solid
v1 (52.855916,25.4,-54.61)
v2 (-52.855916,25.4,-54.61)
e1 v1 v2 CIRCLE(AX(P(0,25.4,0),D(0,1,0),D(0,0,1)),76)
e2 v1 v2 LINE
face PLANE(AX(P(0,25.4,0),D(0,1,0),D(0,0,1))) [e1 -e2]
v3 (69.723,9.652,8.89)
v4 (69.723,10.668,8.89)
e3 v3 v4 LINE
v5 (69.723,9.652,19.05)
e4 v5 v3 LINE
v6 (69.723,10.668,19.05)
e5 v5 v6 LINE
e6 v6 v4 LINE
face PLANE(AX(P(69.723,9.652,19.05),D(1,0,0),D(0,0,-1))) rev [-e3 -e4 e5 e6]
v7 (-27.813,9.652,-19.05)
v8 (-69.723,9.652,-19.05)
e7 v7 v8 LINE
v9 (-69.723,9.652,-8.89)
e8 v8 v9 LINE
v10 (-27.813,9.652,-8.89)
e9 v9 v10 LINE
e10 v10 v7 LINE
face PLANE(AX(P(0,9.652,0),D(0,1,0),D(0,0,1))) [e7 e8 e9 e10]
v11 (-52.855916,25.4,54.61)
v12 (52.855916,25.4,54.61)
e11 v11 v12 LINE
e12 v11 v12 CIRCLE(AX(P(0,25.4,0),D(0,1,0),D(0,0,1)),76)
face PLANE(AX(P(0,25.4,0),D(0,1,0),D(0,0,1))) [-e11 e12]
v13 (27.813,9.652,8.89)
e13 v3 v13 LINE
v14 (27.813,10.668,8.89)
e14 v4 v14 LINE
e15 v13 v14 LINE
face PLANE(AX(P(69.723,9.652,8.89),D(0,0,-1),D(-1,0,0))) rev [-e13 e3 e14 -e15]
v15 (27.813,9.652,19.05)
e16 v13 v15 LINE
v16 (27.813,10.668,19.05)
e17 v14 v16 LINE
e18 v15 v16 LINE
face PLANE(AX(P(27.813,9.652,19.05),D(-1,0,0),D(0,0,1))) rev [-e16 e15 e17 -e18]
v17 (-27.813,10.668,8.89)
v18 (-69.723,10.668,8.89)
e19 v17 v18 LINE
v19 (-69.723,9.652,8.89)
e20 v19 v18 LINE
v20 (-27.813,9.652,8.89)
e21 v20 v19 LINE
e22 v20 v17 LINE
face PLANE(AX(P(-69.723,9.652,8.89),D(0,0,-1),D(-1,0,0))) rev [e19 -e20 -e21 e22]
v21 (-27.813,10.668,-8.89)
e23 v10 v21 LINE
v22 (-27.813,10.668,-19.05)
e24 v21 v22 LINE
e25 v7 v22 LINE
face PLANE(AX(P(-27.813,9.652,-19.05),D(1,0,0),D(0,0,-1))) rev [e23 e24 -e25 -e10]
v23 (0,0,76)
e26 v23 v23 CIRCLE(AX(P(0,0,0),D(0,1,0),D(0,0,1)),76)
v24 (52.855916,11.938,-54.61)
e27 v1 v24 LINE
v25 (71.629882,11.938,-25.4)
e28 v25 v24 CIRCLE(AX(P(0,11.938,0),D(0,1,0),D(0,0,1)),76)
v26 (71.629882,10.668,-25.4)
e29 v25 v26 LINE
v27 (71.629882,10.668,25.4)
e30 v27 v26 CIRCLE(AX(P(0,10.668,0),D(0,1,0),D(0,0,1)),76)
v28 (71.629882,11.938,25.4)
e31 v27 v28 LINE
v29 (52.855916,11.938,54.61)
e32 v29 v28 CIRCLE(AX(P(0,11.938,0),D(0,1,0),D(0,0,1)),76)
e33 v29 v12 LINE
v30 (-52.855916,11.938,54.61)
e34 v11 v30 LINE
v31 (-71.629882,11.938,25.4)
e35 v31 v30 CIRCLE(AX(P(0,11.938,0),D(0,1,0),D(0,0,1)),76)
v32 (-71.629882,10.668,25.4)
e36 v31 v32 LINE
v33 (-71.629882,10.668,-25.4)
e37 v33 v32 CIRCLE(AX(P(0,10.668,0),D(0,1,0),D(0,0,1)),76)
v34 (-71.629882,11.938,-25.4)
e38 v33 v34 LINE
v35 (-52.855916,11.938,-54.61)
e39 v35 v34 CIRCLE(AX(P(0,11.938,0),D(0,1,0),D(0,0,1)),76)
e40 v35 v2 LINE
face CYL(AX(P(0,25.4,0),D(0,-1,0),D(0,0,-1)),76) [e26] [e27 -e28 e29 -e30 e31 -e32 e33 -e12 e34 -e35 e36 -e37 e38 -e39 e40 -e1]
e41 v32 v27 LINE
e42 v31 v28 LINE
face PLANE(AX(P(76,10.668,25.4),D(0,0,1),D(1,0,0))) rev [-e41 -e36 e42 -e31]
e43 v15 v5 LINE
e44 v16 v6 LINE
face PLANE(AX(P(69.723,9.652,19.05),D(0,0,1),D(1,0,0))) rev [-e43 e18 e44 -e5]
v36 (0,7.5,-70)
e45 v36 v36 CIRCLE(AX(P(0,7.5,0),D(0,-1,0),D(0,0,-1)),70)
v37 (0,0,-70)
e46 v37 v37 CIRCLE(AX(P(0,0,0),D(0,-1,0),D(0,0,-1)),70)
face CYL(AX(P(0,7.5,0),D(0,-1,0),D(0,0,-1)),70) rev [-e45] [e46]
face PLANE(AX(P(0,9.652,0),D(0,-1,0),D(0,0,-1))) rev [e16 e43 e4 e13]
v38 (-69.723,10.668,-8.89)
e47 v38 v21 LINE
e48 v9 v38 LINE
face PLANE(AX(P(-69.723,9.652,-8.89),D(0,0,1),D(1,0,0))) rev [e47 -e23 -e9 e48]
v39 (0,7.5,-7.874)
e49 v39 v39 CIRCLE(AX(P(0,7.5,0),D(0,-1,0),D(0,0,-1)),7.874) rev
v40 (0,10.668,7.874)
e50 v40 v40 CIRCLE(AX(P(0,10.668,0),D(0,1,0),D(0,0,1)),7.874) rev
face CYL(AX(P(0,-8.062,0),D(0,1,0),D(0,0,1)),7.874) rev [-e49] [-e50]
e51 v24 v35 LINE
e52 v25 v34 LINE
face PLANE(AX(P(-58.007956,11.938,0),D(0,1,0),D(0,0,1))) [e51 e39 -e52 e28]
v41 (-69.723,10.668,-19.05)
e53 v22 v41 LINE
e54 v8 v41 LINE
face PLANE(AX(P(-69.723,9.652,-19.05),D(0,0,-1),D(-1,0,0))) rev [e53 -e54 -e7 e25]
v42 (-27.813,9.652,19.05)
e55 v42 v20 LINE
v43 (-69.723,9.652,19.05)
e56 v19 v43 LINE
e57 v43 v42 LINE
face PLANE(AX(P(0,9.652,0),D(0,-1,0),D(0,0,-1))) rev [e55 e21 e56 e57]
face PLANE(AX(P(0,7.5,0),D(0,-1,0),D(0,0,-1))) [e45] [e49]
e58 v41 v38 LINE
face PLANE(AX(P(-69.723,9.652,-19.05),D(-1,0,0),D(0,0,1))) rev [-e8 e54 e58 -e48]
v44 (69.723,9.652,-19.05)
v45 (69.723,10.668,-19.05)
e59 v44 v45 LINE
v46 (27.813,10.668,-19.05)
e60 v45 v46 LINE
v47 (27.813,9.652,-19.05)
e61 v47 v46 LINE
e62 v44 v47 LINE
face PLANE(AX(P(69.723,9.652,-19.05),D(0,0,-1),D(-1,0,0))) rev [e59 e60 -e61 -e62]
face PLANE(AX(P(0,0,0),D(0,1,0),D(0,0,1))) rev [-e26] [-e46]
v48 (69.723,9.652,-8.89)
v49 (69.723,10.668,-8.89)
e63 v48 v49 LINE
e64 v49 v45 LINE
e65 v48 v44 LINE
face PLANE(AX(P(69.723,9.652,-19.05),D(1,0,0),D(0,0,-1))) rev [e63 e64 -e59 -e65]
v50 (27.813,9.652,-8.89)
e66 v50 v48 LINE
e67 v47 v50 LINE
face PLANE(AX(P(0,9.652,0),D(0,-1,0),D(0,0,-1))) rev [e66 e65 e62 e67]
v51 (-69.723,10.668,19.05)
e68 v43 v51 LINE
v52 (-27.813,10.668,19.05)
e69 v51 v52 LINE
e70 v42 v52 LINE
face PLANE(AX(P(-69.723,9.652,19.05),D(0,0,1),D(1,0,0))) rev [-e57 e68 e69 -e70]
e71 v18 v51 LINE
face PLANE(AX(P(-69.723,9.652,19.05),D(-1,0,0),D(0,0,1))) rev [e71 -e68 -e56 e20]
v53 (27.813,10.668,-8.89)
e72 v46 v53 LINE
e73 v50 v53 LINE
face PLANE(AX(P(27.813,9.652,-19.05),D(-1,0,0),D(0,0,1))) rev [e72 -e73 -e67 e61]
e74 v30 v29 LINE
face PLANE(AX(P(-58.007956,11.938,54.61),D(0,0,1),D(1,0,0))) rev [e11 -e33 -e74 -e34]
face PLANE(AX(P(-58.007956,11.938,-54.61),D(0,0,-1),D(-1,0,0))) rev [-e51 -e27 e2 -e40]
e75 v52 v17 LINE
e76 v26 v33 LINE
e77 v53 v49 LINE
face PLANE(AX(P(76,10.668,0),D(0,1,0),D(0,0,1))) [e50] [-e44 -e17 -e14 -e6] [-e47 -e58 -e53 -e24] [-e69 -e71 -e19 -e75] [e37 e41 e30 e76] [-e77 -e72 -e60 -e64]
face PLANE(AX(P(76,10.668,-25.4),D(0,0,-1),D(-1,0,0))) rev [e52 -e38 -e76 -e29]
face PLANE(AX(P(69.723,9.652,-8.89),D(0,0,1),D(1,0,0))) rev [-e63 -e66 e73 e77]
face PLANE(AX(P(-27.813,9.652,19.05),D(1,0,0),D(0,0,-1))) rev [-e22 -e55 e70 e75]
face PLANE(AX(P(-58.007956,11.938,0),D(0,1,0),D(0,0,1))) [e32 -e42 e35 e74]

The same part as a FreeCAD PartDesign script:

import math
import FreeCAD as App
import Part
import Sketcher
Q = App.Units.Quantity

doc = App.newDocument("Part")
body = doc.addObject("PartDesign::Body", "Body")

# Sketch on XZ plane
sketch1 = doc.addObject("Sketcher::SketchObject", "Sketch")
body.addObject(sketch1)
sketch1.AttachmentSupport = (doc.XZ_Plane, [""])
sketch1.MapMode = "FlatFace"
sketch1.addGeometry(Part.Circle(App.Vector(0, 0, 0), App.Vector(0, 0, 1), 76), False)
sketch1.addConstraint(Sketcher.Constraint("Coincident", 0, 3, -1, 1))
sketch1.addConstraint(Sketcher.Constraint("Diameter", 0, Q("152 mm")))
pad1 = doc.addObject("PartDesign::Pad", "Pad")
body.addObject(pad1)
pad1.Profile = sketch1
pad1.Length = Q("1 in")
pad1.Reversed = True

# Sketch on XZ plane
sketch2 = doc.addObject("Sketcher::SketchObject", "Sketch001")
body.addObject(sketch2)
sketch2.AttachmentSupport = (doc.XZ_Plane, [""])
sketch2.MapMode = "FlatFace"
sketch2.AttachmentOffset = App.Placement(App.Vector(0, 0, -1 * 25.4), App.Rotation())
sketch2.addGeometry(Part.LineSegment(App.Vector(58, -55, 0), App.Vector(-58, -55, 0)), False)
sketch2.addGeometry(Part.ArcOfCircle(Part.Circle(App.Vector(-58, 0, 0), App.Vector(0, 0, 1), 55), math.radians(90), math.radians(270)), False)
sketch2.addGeometry(Part.LineSegment(App.Vector(-58, 55, 0), App.Vector(58, 55, 0)), False)
sketch2.addGeometry(Part.ArcOfCircle(Part.Circle(App.Vector(58, 0, 0), App.Vector(0, 0, 1), 55), math.radians(-90), math.radians(90)), False)
sketch2.addConstraint(Sketcher.Constraint("Tangent", 0, 2, 1, 2))
sketch2.addConstraint(Sketcher.Constraint("Tangent", 1, 1, 2, 1))
sketch2.addConstraint(Sketcher.Constraint("Tangent", 2, 2, 3, 2))
sketch2.addConstraint(Sketcher.Constraint("Tangent", 3, 1, 0, 1))
sketch2.addConstraint(Sketcher.Constraint("Horizontal", 0))
sketch2.addConstraint(Sketcher.Constraint("Horizontal", 2))
sketch2.addConstraint(Sketcher.Constraint("Symmetric", 1, 3, 3, 3, -1, 1))
sketch2.addConstraint(Sketcher.Constraint("Radius", 1, Q("2.15 in")))
sketch2.addConstraint(Sketcher.Constraint("DistanceX", 0, 2, 0, 1, Q("116.015911 mm")))
pocket1 = doc.addObject("PartDesign::Pocket", "Pocket")
body.addObject(pocket1)
pocket1.Profile = sketch2
pocket1.Length = Q("0.53 in")
pocket1.Reversed = True

# Sketch on XZ plane
sketch3 = doc.addObject("Sketcher::SketchObject", "Sketch002")
body.addObject(sketch3)
sketch3.AttachmentSupport = (doc.XZ_Plane, [""])
sketch3.MapMode = "FlatFace"
sketch3.AttachmentOffset = App.Placement(App.Vector(0, 0, -0.47 * 25.4), App.Rotation())
sketch3.addGeometry(Part.Circle(App.Vector(0, 0, 0), App.Vector(0, 0, 1), 8), False)
sketch3.addConstraint(Sketcher.Constraint("Coincident", 0, 3, -1, 1))
sketch3.addConstraint(Sketcher.Constraint("Diameter", 0, Q("0.62 in")))
pocket2 = doc.addObject("PartDesign::Pocket", "Pocket001")
body.addObject(pocket2)
pocket2.Profile = sketch3
pocket2.Length = 20
pocket2.Reversed = True

# Sketch on XZ plane
sketch4 = doc.addObject("Sketcher::SketchObject", "Sketch003")
body.addObject(sketch4)
sketch4.AttachmentSupport = (doc.XZ_Plane, [""])
sketch4.MapMode = "FlatFace"
sketch4.addGeometry(Part.Circle(App.Vector(0, 0, 0), App.Vector(0, 0, 1), 70), False)
sketch4.addConstraint(Sketcher.Constraint("Coincident", 0, 3, -1, 1))
sketch4.addConstraint(Sketcher.Constraint("Diameter", 0, Q("140 mm")))
pocket3 = doc.addObject("PartDesign::Pocket", "Pocket002")
body.addObject(pocket3)
pocket3.Profile = sketch4
pocket3.Length = 7.5

# Sketch on XZ plane
sketch5 = doc.addObject("Sketcher::SketchObject", "Sketch004")
body.addObject(sketch5)
sketch5.AttachmentSupport = (doc.XZ_Plane, [""])
sketch5.MapMode = "FlatFace"
sketch5.AttachmentOffset = App.Placement(App.Vector(0, 0, -0.47 * 25.4), App.Rotation())
sketch5.addGeometry(Part.LineSegment(App.Vector(-76, 25, 0), App.Vector(76, 25, 0)), False)
sketch5.addGeometry(Part.ArcOfCircle(Part.Circle(App.Vector(76, 0, 0), App.Vector(0, 0, 1), 25), math.radians(-90), math.radians(90)), False)
sketch5.addGeometry(Part.LineSegment(App.Vector(76, -25, 0), App.Vector(-76, -25, 0)), False)
sketch5.addGeometry(Part.ArcOfCircle(Part.Circle(App.Vector(-76, 0, 0), App.Vector(0, 0, 1), 25), math.radians(90), math.radians(270)), False)
sketch5.addConstraint(Sketcher.Constraint("Tangent", 0, 2, 1, 2))
sketch5.addConstraint(Sketcher.Constraint("Tangent", 1, 1, 2, 1))
sketch5.addConstraint(Sketcher.Constraint("Tangent", 2, 2, 3, 2))
sketch5.addConstraint(Sketcher.Constraint("Tangent", 3, 1, 0, 1))
sketch5.addConstraint(Sketcher.Constraint("Horizontal", 0))
sketch5.addConstraint(Sketcher.Constraint("Horizontal", 2))
sketch5.addConstraint(Sketcher.Constraint("Symmetric", 1, 3, 3, 3, -1, 1))
sketch5.addConstraint(Sketcher.Constraint("Radius", 1, Q("1 in")))
sketch5.addConstraint(Sketcher.Constraint("DistanceX", 0, 1, 0, 2, Q("152 mm")))
pocket4 = doc.addObject("PartDesign::Pocket", "Pocket003")
body.addObject(pocket4)
pocket4.Profile = sketch5
pocket4.Length = Q("0.05 in")
pocket4.Reversed = True

# Sketch on XZ plane
sketch6 = doc.addObject("Sketcher::SketchObject", "Sketch005")
body.addObject(sketch6)
sketch6.AttachmentSupport = (doc.XZ_Plane, [""])
sketch6.MapMode = "FlatFace"
sketch6.AttachmentOffset = App.Placement(App.Vector(0, 0, -0.42 * 25.4), App.Rotation())
sketch6.addGeometry(Part.LineSegment(App.Vector(-70, 9, 0), App.Vector(-70, 19, 0)), False)
sketch6.addGeometry(Part.LineSegment(App.Vector(-70, 19, 0), App.Vector(-28, 19, 0)), False)
sketch6.addGeometry(Part.LineSegment(App.Vector(-28, 19, 0), App.Vector(-28, 9, 0)), False)
sketch6.addGeometry(Part.LineSegment(App.Vector(-28, 9, 0), App.Vector(-70, 9, 0)), False)
sketch6.addGeometry(Part.LineSegment(App.Vector(-70, -19, 0), App.Vector(-70, -9, 0)), False)
sketch6.addGeometry(Part.LineSegment(App.Vector(-70, -9, 0), App.Vector(-28, -9, 0)), False)
sketch6.addGeometry(Part.LineSegment(App.Vector(-28, -9, 0), App.Vector(-28, -19, 0)), False)
sketch6.addGeometry(Part.LineSegment(App.Vector(-28, -19, 0), App.Vector(-70, -19, 0)), False)
sketch6.addGeometry(Part.LineSegment(App.Vector(28, 9, 0), App.Vector(28, 19, 0)), False)
sketch6.addGeometry(Part.LineSegment(App.Vector(28, 19, 0), App.Vector(70, 19, 0)), False)
sketch6.addGeometry(Part.LineSegment(App.Vector(70, 19, 0), App.Vector(70, 9, 0)), False)
sketch6.addGeometry(Part.LineSegment(App.Vector(70, 9, 0), App.Vector(28, 9, 0)), False)
sketch6.addGeometry(Part.LineSegment(App.Vector(28, -19, 0), App.Vector(28, -9, 0)), False)
sketch6.addGeometry(Part.LineSegment(App.Vector(28, -9, 0), App.Vector(70, -9, 0)), False)
sketch6.addGeometry(Part.LineSegment(App.Vector(70, -9, 0), App.Vector(70, -19, 0)), False)
sketch6.addGeometry(Part.LineSegment(App.Vector(70, -19, 0), App.Vector(28, -19, 0)), False)
sketch6.addConstraint(Sketcher.Constraint("Coincident", 0, 2, 1, 1))
sketch6.addConstraint(Sketcher.Constraint("Coincident", 1, 2, 2, 1))
sketch6.addConstraint(Sketcher.Constraint("Coincident", 2, 2, 3, 1))
sketch6.addConstraint(Sketcher.Constraint("Coincident", 3, 2, 0, 1))
sketch6.addConstraint(Sketcher.Constraint("Coincident", 4, 2, 5, 1))
sketch6.addConstraint(Sketcher.Constraint("Coincident", 5, 2, 6, 1))
sketch6.addConstraint(Sketcher.Constraint("Coincident", 6, 2, 7, 1))
sketch6.addConstraint(Sketcher.Constraint("Coincident", 7, 2, 4, 1))
sketch6.addConstraint(Sketcher.Constraint("Coincident", 8, 2, 9, 1))
sketch6.addConstraint(Sketcher.Constraint("Coincident", 9, 2, 10, 1))
sketch6.addConstraint(Sketcher.Constraint("Coincident", 10, 2, 11, 1))
sketch6.addConstraint(Sketcher.Constraint("Coincident", 11, 2, 8, 1))
sketch6.addConstraint(Sketcher.Constraint("Coincident", 12, 2, 13, 1))
sketch6.addConstraint(Sketcher.Constraint("Coincident", 13, 2, 14, 1))
sketch6.addConstraint(Sketcher.Constraint("Coincident", 14, 2, 15, 1))
sketch6.addConstraint(Sketcher.Constraint("Coincident", 15, 2, 12, 1))
sketch6.addConstraint(Sketcher.Constraint("Vertical", 0))
sketch6.addConstraint(Sketcher.Constraint("Horizontal", 1))
sketch6.addConstraint(Sketcher.Constraint("Vertical", 2))
sketch6.addConstraint(Sketcher.Constraint("Horizontal", 3))
sketch6.addConstraint(Sketcher.Constraint("Vertical", 4))
sketch6.addConstraint(Sketcher.Constraint("Horizontal", 5))
sketch6.addConstraint(Sketcher.Constraint("Vertical", 6))
sketch6.addConstraint(Sketcher.Constraint("Horizontal", 7))
sketch6.addConstraint(Sketcher.Constraint("Vertical", 8))
sketch6.addConstraint(Sketcher.Constraint("Horizontal", 9))
sketch6.addConstraint(Sketcher.Constraint("Vertical", 10))
sketch6.addConstraint(Sketcher.Constraint("Horizontal", 11))
sketch6.addConstraint(Sketcher.Constraint("Vertical", 12))
sketch6.addConstraint(Sketcher.Constraint("Horizontal", 13))
sketch6.addConstraint(Sketcher.Constraint("Vertical", 14))
sketch6.addConstraint(Sketcher.Constraint("Horizontal", 15))
sketch6.addConstraint(Sketcher.Constraint("Symmetric", 6, 2, 8, 2, -1, 1))
sketch6.addConstraint(Sketcher.Constraint("Symmetric", 4, 2, 10, 2, -1, 1))
sketch6.addConstraint(Sketcher.Constraint("Symmetric", 2, 2, 12, 2, -1, 1))
sketch6.addConstraint(Sketcher.Constraint("Symmetric", 0, 2, 14, 2, -1, 1))
sketch6.addConstraint(Sketcher.Constraint("Symmetric", 1, 2, 8, 2, -2))
sketch6.addConstraint(Sketcher.Constraint("Symmetric", 3, 2, 10, 2, -2))
sketch6.addConstraint(Sketcher.Constraint("DistanceY", 0, 1, 0, 2, Q("0.4 in")))
sketch6.addConstraint(Sketcher.Constraint("DistanceX", 1, 1, 1, 2, Q("1.65 in")))
sketch6.addConstraint(Sketcher.Constraint("DistanceY", 4, 2, 3, 2, Q("0.7 in")))
sketch6.addConstraint(Sketcher.Constraint("DistanceX", 1, 2, 8, 2, Q("2.19 in")))
pocket5 = doc.addObject("PartDesign::Pocket", "Pocket004")
body.addObject(pocket5)
pocket5.Profile = sketch6
pocket5.Length = Q("0.04 in")
pocket5.Reversed = True

doc.recompute()
